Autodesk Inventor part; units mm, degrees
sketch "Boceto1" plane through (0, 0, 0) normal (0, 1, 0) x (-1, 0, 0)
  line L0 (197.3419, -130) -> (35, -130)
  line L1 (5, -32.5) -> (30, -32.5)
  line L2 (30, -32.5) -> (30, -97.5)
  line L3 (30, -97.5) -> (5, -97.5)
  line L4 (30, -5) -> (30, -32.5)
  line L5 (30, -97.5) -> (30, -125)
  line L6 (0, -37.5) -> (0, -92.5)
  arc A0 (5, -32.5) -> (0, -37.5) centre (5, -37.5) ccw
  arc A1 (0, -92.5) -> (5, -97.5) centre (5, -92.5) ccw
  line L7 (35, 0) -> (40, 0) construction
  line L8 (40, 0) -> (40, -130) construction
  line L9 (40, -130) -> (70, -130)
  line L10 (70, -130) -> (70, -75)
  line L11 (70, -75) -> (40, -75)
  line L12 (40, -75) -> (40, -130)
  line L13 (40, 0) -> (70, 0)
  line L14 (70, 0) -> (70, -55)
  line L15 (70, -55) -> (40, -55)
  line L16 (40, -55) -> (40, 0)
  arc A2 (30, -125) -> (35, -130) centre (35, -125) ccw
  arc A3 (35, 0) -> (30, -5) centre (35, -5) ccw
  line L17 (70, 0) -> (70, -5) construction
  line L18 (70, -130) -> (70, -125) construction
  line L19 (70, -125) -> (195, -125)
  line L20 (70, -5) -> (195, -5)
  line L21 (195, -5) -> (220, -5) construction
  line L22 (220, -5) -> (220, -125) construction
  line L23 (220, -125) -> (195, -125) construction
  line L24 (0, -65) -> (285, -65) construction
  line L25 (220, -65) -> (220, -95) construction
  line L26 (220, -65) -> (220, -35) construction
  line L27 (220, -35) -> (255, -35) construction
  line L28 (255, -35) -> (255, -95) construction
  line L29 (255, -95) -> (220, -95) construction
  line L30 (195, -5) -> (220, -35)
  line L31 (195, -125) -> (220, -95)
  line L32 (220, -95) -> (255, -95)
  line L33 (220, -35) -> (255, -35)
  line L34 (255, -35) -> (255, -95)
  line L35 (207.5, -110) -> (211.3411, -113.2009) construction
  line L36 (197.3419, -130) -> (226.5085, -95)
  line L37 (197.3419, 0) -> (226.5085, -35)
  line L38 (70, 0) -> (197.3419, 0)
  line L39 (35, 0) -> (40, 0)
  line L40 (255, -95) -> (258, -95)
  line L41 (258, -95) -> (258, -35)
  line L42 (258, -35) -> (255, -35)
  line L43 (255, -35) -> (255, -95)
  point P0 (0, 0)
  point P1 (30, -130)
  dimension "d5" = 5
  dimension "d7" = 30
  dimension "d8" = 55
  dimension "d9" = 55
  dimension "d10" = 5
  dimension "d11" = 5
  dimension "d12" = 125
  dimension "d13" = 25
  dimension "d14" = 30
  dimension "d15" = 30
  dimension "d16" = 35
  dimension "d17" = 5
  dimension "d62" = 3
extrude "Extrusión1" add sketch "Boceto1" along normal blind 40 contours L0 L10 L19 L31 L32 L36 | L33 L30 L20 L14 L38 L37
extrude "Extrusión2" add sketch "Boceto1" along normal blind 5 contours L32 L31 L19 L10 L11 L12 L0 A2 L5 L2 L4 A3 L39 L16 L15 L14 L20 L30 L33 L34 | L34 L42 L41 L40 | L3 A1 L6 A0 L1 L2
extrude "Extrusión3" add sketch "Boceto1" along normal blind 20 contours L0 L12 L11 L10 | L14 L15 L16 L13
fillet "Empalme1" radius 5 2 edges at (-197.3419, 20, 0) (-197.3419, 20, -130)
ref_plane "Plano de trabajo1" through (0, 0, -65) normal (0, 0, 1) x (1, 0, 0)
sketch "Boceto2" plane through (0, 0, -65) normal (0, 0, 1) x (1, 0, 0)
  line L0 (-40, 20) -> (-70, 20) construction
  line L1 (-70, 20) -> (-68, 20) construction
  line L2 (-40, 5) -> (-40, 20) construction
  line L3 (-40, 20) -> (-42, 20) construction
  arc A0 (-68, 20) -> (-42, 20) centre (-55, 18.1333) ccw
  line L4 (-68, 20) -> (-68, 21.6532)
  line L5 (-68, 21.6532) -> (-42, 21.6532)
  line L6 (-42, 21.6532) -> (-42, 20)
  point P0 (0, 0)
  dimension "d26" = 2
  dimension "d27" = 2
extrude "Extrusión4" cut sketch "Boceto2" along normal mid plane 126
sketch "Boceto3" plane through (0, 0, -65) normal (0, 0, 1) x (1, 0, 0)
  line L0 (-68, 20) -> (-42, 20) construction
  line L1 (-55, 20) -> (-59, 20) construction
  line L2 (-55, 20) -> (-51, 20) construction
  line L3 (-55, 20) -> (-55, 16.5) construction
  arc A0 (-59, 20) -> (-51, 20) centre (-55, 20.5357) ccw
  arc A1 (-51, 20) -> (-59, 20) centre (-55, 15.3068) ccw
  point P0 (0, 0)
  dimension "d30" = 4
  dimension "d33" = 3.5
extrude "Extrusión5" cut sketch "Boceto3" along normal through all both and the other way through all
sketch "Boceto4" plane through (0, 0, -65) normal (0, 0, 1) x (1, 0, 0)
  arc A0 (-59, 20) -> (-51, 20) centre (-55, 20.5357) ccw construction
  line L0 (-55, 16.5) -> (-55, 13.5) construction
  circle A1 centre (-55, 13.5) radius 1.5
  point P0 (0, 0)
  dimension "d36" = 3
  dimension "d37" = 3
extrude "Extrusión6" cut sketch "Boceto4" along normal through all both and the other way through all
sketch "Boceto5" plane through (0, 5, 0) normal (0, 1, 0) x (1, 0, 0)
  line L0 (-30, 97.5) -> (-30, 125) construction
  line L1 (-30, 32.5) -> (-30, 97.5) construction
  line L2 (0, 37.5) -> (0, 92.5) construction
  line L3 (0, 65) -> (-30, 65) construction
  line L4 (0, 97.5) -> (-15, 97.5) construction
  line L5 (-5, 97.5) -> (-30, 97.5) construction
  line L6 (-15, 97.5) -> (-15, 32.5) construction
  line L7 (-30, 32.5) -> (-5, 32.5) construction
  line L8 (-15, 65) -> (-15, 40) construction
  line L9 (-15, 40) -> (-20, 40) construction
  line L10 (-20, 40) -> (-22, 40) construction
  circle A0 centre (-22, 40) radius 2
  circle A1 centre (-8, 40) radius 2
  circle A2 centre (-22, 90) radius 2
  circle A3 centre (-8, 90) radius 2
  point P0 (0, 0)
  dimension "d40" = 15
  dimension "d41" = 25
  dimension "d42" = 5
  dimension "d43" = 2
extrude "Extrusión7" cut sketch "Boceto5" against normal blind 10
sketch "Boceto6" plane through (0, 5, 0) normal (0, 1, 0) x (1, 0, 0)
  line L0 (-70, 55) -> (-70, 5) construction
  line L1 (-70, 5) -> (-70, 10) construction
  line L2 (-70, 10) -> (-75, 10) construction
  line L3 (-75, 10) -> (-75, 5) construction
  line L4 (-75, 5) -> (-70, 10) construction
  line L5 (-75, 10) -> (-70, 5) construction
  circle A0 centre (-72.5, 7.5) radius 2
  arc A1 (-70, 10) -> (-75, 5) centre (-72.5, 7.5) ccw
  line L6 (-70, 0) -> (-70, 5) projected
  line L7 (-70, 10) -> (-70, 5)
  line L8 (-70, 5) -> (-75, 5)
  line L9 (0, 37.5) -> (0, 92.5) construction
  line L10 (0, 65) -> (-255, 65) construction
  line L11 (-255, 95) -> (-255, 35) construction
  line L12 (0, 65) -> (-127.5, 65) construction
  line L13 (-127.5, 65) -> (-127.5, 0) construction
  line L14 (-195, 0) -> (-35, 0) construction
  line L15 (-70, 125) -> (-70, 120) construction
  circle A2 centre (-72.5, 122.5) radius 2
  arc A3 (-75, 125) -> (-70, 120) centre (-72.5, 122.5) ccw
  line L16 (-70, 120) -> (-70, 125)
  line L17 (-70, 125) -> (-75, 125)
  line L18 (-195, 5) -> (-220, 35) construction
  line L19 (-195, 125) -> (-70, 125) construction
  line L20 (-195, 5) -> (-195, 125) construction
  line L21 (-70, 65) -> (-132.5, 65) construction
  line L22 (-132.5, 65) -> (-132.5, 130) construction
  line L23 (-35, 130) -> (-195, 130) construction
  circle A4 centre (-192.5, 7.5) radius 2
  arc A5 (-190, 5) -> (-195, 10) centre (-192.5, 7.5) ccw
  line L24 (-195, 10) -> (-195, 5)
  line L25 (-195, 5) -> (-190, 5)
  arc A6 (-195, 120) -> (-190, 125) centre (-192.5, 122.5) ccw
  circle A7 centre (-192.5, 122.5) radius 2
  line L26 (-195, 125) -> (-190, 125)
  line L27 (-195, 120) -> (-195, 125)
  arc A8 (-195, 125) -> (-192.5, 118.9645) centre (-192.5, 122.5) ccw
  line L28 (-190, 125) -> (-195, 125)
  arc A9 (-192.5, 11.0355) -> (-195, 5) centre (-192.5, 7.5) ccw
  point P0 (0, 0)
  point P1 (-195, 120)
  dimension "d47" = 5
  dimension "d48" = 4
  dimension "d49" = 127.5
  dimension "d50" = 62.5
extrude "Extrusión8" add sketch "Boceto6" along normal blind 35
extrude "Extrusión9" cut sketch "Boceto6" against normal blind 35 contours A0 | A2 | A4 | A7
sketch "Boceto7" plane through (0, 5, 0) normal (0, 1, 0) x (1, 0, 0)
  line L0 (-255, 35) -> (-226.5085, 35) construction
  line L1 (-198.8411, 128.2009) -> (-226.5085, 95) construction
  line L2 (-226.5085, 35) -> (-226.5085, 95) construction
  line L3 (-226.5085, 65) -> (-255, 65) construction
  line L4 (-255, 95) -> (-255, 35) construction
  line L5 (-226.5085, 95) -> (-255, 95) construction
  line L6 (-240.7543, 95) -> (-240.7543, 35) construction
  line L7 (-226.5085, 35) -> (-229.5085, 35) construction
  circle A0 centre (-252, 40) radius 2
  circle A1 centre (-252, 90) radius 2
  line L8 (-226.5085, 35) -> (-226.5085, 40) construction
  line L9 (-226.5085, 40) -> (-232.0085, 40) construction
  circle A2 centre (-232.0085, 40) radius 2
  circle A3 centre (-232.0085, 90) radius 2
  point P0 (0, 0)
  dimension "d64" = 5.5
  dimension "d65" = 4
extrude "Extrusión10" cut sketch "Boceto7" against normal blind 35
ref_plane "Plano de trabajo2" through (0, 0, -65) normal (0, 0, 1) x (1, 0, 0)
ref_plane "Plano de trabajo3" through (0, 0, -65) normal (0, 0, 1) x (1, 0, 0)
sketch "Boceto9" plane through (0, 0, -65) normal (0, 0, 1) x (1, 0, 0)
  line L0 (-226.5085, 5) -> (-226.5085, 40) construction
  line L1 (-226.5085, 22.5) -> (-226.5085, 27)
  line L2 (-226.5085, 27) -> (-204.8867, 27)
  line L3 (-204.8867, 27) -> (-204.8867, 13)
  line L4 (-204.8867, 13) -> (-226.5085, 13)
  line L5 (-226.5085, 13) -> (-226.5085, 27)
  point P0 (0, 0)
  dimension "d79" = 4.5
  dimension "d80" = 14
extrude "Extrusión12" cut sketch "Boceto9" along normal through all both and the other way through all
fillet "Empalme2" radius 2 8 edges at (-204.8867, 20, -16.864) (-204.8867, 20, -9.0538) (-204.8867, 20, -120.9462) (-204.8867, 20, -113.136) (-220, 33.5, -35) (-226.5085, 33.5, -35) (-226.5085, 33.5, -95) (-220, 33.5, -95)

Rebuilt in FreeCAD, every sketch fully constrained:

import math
import FreeCAD as App
import Part
import Sketcher


def edges_at(feature, points):
    """Names of the edges that pass closest to the given points."""
    edges = feature.Shape.Edges
    near = lambda p: min(range(len(edges)), key=lambda i: edges[i].distToShape(Part.Vertex(*p))[0])
    return sorted({f"Edge{near(p) + 1}" for p in points})


def add_polygon(sketch, points):
    """Adds a closed chain of lines whose ends are joined by coincident constraints."""
    first, n = sketch.GeometryCount, len(points)
    for a, b in zip(points, points[1:] + points[:1]):
        sketch.addGeometry(Part.LineSegment(App.Vector(*a, 0), App.Vector(*b, 0)), False)
    for i in range(n):
        sketch.addConstraint(Sketcher.Constraint("Coincident", first + i, 2, first + (i + 1) % n, 1))

doc = App.newDocument("Part")
body = doc.addObject("PartDesign::Body", "Body")
body.AllowCompound = True

# Sketch on XZ plane
sketch1 = doc.addObject("Sketcher::SketchObject", "Sketch")
body.addObject(sketch1)
sketch1.AttachmentSupport = (doc.XZ_Plane, [""])
sketch1.MapMode = "FlatFace"
add_polygon(sketch1, [(-70, -130), (-197, -130), (-227, -95), (-220, -95), (-195, -125), (-70, -125)])  # lines 0-5
add_polygon(sketch1, [(-220, -35), (-227, -35), (-197, 0), (-70, 0), (-70, -5), (-195, -5)])  # lines 6-11
sketch1.addConstraint(Sketcher.Constraint("Horizontal", 0))
sketch1.addConstraint(Sketcher.Constraint("Horizontal", 2))
sketch1.addConstraint(Sketcher.Constraint("Horizontal", 4))
sketch1.addConstraint(Sketcher.Constraint("Vertical", 5))
sketch1.addConstraint(Sketcher.Constraint("Horizontal", 6))
sketch1.addConstraint(Sketcher.Constraint("Horizontal", 8))
sketch1.addConstraint(Sketcher.Constraint("Vertical", 9))
sketch1.addConstraint(Sketcher.Constraint("Horizontal", 10))
sketch1.addConstraint(Sketcher.Constraint("PointOnObject", 7, 2, -1))
sketch1.addConstraint(Sketcher.Constraint("Parallel", 1, 3))
sketch1.addConstraint(Sketcher.Constraint("Parallel", 7, 11))
sketch1.addConstraint(Sketcher.Constraint("Vertical", 1, 2, 6, 2))
sketch1.addConstraint(Sketcher.Constraint("Vertical", 0, 2, 7, 2))
sketch1.addConstraint(Sketcher.Constraint("Vertical", 5, 2, 8, 2))
sketch1.addConstraint(Sketcher.Constraint("Vertical", 3, 2, 10, 2))
sketch1.addConstraint(Sketcher.Constraint("Vertical", 2, 2, 11, 2))
sketch1.addConstraint(Sketcher.Constraint("Equal", 5, 9))
sketch1.addConstraint(Sketcher.Constraint("DistanceX", 4, 1, 4, 2, 125.0))
sketch1.addConstraint(Sketcher.Constraint("DistanceY", 5, 2, 5, 1, 5.0))
sketch1.addConstraint(Sketcher.Constraint("DistanceY", 3, 2, -1, 1, 125.0))
sketch1.addConstraint(Sketcher.Constraint("DistanceY", 6, 2, -1, 1, 35.0))
sketch1.addConstraint(Sketcher.Constraint("DistanceX", 2, 2, 3, 2, 25.0))
sketch1.addConstraint(Sketcher.Constraint("DistanceX", 2, 2, -1, 1, 220.0))
sketch1.addConstraint(Sketcher.Constraint("DistanceX", 0, 2, 0, 1, 127.342))
pad1 = doc.addObject("PartDesign::Pad", "Pad")
body.addObject(pad1)
pad1.Profile = sketch1
pad1.Length = 40
pad1.Reversed = True

# Sketch on XZ plane
sketch2 = doc.addObject("Sketcher::SketchObject", "Sketch001")
body.addObject(sketch2)
sketch2.AttachmentSupport = (doc.XZ_Plane, [""])
sketch2.MapMode = "FlatFace"
sketch2.addGeometry(Part.LineSegment(App.Vector(-220, -95, 0), App.Vector(-258, -95, 0)), False)
sketch2.addGeometry(Part.LineSegment(App.Vector(-258, -95, 0), App.Vector(-258, -35, 0)), False)
sketch2.addGeometry(Part.LineSegment(App.Vector(-258, -35, 0), App.Vector(-220, -35, 0)), False)
sketch2.addGeometry(Part.LineSegment(App.Vector(-220, -35, 0), App.Vector(-195, -5, 0)), False)
sketch2.addGeometry(Part.LineSegment(App.Vector(-195, -5, 0), App.Vector(-70, -5, 0)), False)
sketch2.addGeometry(Part.LineSegment(App.Vector(-70, -5, 0), App.Vector(-70, -55, 0)), False)
sketch2.addGeometry(Part.LineSegment(App.Vector(-70, -55, 0), App.Vector(-40, -55, 0)), False)
sketch2.addGeometry(Part.LineSegment(App.Vector(-40, -55, 0), App.Vector(-40, 0, 0)), False)
sketch2.addGeometry(Part.LineSegment(App.Vector(-40, 0, 0), App.Vector(-35, 0, 0)), False)
sketch2.addGeometry(Part.ArcOfCircle(Part.Circle(App.Vector(-35, -5, 0), App.Vector(0, 0, 1), 5), math.radians(0), math.radians(90)), False)
sketch2.addGeometry(Part.LineSegment(App.Vector(-30, -5, 0), App.Vector(-30, -32, 0)), False)
sketch2.addGeometry(Part.LineSegment(App.Vector(-30, -32, 0), App.Vector(-5, -32, 0)), False)
sketch2.addGeometry(Part.ArcOfCircle(Part.Circle(App.Vector(-5, -38, 0), App.Vector(0, 0, 1), 5), math.radians(0), math.radians(90)), False)
sketch2.addGeometry(Part.LineSegment(App.Vector(0, -38, 0), App.Vector(0, -92, 0)), False)
sketch2.addGeometry(Part.ArcOfCircle(Part.Circle(App.Vector(-5, -92, 0), App.Vector(0, 0, 1), 5), math.radians(-90), math.radians(0)), False)
sketch2.addGeometry(Part.LineSegment(App.Vector(-5, -98, 0), App.Vector(-30, -98, 0)), False)
sketch2.addGeometry(Part.LineSegment(App.Vector(-30, -98, 0), App.Vector(-30, -125, 0)), False)
sketch2.addGeometry(Part.ArcOfCircle(Part.Circle(App.Vector(-35, -125, 0), App.Vector(0, 0, 1), 5), math.radians(-90), math.radians(0)), False)
sketch2.addGeometry(Part.LineSegment(App.Vector(-35, -130, 0), App.Vector(-40, -130, 0)), False)
sketch2.addGeometry(Part.LineSegment(App.Vector(-40, -130, 0), App.Vector(-40, -75, 0)), False)
sketch2.addGeometry(Part.LineSegment(App.Vector(-40, -75, 0), App.Vector(-70, -75, 0)), False)
sketch2.addGeometry(Part.LineSegment(App.Vector(-70, -75, 0), App.Vector(-70, -125, 0)), False)
sketch2.addGeometry(Part.LineSegment(App.Vector(-70, -125, 0), App.Vector(-195, -125, 0)), False)
sketch2.addGeometry(Part.LineSegment(App.Vector(-195, -125, 0), App.Vector(-220, -95, 0)), False)
sketch2.addConstraint(Sketcher.Constraint("Coincident", 0, 2, 1, 1))
sketch2.addConstraint(Sketcher.Constraint("Coincident", 1, 2, 2, 1))
sketch2.addConstraint(Sketcher.Constraint("Coincident", 2, 2, 3, 1))
sketch2.addConstraint(Sketcher.Constraint("Coincident", 3, 2, 4, 1))
sketch2.addConstraint(Sketcher.Constraint("Coincident", 4, 2, 5, 1))
sketch2.addConstraint(Sketcher.Constraint("Coincident", 5, 2, 6, 1))
sketch2.addConstraint(Sketcher.Constraint("Coincident", 6, 2, 7, 1))
sketch2.addConstraint(Sketcher.Constraint("Coincident", 7, 2, 8, 1))
sketch2.addConstraint(Sketcher.Constraint("Tangent", 8, 2, 9, 2))
sketch2.addConstraint(Sketcher.Constraint("Tangent", 9, 1, 10, 1))
sketch2.addConstraint(Sketcher.Constraint("Coincident", 10, 2, 11, 1))
sketch2.addConstraint(Sketcher.Constraint("Tangent", 11, 2, 12, 2))
sketch2.addConstraint(Sketcher.Constraint("Tangent", 12, 1, 13, 1))
sketch2.addConstraint(Sketcher.Constraint("Tangent", 13, 2, 14, 2))
sketch2.addConstraint(Sketcher.Constraint("Tangent", 14, 1, 15, 1))
sketch2.addConstraint(Sketcher.Constraint("Coincident", 15, 2, 16, 1))
sketch2.addConstraint(Sketcher.Constraint("Tangent", 16, 2, 17, 2))
sketch2.addConstraint(Sketcher.Constraint("Tangent", 17, 1, 18, 1))
sketch2.addConstraint(Sketcher.Constraint("Coincident", 18, 2, 19, 1))
sketch2.addConstraint(Sketcher.Constraint("Coincident", 19, 2, 20, 1))
sketch2.addConstraint(Sketcher.Constraint("Coincident", 20, 2, 21, 1))
sketch2.addConstraint(Sketcher.Constraint("Coincident", 21, 2, 22, 1))
sketch2.addConstraint(Sketcher.Constraint("Coincident", 22, 2, 23, 1))
sketch2.addConstraint(Sketcher.Constraint("Coincident", 23, 2, 0, 1))
sketch2.addConstraint(Sketcher.Constraint("Horizontal", 0))
sketch2.addConstraint(Sketcher.Constraint("Vertical", 1))
sketch2.addConstraint(Sketcher.Constraint("Horizontal", 2))
sketch2.addConstraint(Sketcher.Constraint("Horizontal", 4))
sketch2.addConstraint(Sketcher.Constraint("Vertical", 5))
sketch2.addConstraint(Sketcher.Constraint("Horizontal", 6))
sketch2.addConstraint(Sketcher.Constraint("Vertical", 7))
sketch2.addConstraint(Sketcher.Constraint("Horizontal", 8))
sketch2.addConstraint(Sketcher.Constraint("Vertical", 10))
sketch2.addConstraint(Sketcher.Constraint("Horizontal", 11))
sketch2.addConstraint(Sketcher.Constraint("Vertical", 13))
sketch2.addConstraint(Sketcher.Constraint("Horizontal", 15))
sketch2.addConstraint(Sketcher.Constraint("Vertical", 16))
sketch2.addConstraint(Sketcher.Constraint("Horizontal", 18))
sketch2.addConstraint(Sketcher.Constraint("Vertical", 19))
sketch2.addConstraint(Sketcher.Constraint("Horizontal", 20))
sketch2.addConstraint(Sketcher.Constraint("Vertical", 21))
sketch2.addConstraint(Sketcher.Constraint("Horizontal", 22))
sketch2.addConstraint(Sketcher.Constraint("Equal", 9, 12))
sketch2.addConstraint(Sketcher.Constraint("Equal", 12, 14))
sketch2.addConstraint(Sketcher.Constraint("Equal", 14, 17))
sketch2.addConstraint(Sketcher.Constraint("PointOnObject", 7, 2, -1))
sketch2.addConstraint(Sketcher.Constraint("PointOnObject", 12, 1, -2))
sketch2.addConstraint(Sketcher.Constraint("Horizontal", 9, 3, 3, 2))
sketch2.addConstraint(Sketcher.Constraint("Horizontal", 16, 2, 21, 2))
sketch2.addConstraint(Sketcher.Constraint("Vertical", 9, 3, 17, 3))
sketch2.addConstraint(Sketcher.Constraint("Vertical", 7, 2, 18, 2))
sketch2.addConstraint(Sketcher.Constraint("Vertical", 5, 2, 20, 2))
sketch2.addConstraint(Sketcher.Constraint("Vertical", 3, 2, 22, 2))
sketch2.addConstraint(Sketcher.Constraint("Vertical", 2, 2, 23, 2))
sketch2.addConstraint(Sketcher.Constraint("Equal", 7, 13))
sketch2.addConstraint(Sketcher.Constraint("Equal", 10, 16))
sketch2.addConstraint(Sketcher.Constraint("Equal", 13, 19))
sketch2.addConstraint(Sketcher.Constraint("Equal", 3, 23))
sketch2.addConstraint(Sketcher.Constraint("Radius", 9, 5.0))
sketch2.addConstraint(Sketcher.Constraint("DistanceX", 4, 1, 4, 2, 125.0))
sketch2.addConstraint(Sketcher.Constraint("DistanceX", 6, 1, 6, 2, 30.0))
sketch2.addConstraint(Sketcher.Constraint("DistanceX", 8, 1, 8, 2, 5.0))
sketch2.addConstraint(Sketcher.Constraint("DistanceX", 11, 1, 11, 2, 25.0))
sketch2.addConstraint(Sketcher.Constraint("DistanceY", 7, 1, 7, 2, 55.0))
sketch2.addConstraint(Sketcher.Constraint("DistanceY", 17, 3, -1, 1, 125.0))
sketch2.addConstraint(Sketcher.Constraint("DistanceY", 1, 2, -1, 1, 35.0))
sketch2.addConstraint(Sketcher.Constraint("DistanceX", 2, 2, 3, 2, 25.0))
sketch2.addConstraint(Sketcher.Constraint("DistanceX", 0, 2, 0, 1, 38.0))
pad2 = doc.addObject("PartDesign::Pad", "Pad001")
body.addObject(pad2)
pad2.Profile = sketch2
pad2.Length = 5
pad2.Reversed = True

# Sketch on XZ plane
sketch3 = doc.addObject("Sketcher::SketchObject", "Sketch002")
body.addObject(sketch3)
sketch3.AttachmentSupport = (doc.XZ_Plane, [""])
sketch3.MapMode = "FlatFace"
add_polygon(sketch3, [(-40, -130), (-70, -130), (-70, -75), (-40, -75)])  # lines 0-3
add_polygon(sketch3, [(-70, -55), (-70, 0), (-40, 0), (-40, -55)])  # lines 4-7
sketch3.addConstraint(Sketcher.Constraint("Horizontal", 0))
sketch3.addConstraint(Sketcher.Constraint("Vertical", 1))
sketch3.addConstraint(Sketcher.Constraint("Horizontal", 2))
sketch3.addConstraint(Sketcher.Constraint("Vertical", 3))
sketch3.addConstraint(Sketcher.Constraint("Vertical", 4))
sketch3.addConstraint(Sketcher.Constraint("Horizontal", 5))
sketch3.addConstraint(Sketcher.Constraint("Vertical", 6))
sketch3.addConstraint(Sketcher.Constraint("Horizontal", 7))
sketch3.addConstraint(Sketcher.Constraint("PointOnObject", 4, 2, -1))
sketch3.addConstraint(Sketcher.Constraint("Vertical", 1, 2, 4, 2))
sketch3.addConstraint(Sketcher.Constraint("Vertical", 3, 2, 5, 2))
sketch3.addConstraint(Sketcher.Constraint("Equal", 3, 4))
sketch3.addConstraint(Sketcher.Constraint("DistanceX", 0, 2, 0, 1, 30.0))
sketch3.addConstraint(Sketcher.Constraint("DistanceY", 1, 1, 1, 2, 55.0))
sketch3.addConstraint(Sketcher.Constraint("DistanceX", 0, 2, -1, 1, 70.0))
sketch3.addConstraint(Sketcher.Constraint("DistanceY", 0, 2, -1, 1, 130.0))
pad3 = doc.addObject("PartDesign::Pad", "Pad002")
body.addObject(pad3)
pad3.Profile = sketch3
pad3.Length = 20
pad3.Reversed = True
doc.recompute()

fillet = doc.addObject("PartDesign::Fillet", "Fillet")
body.addObject(fillet)
fillet.Base = (pad3, edges_at(pad3, [(-197.342, 20, 0), (-197.342, 20, -130)]))
fillet.Radius = 5

# Sketch on XY plane
sketch4 = doc.addObject("Sketcher::SketchObject", "Sketch003")
body.addObject(sketch4)
sketch4.AttachmentSupport = (doc.XY_Plane, [""])
sketch4.MapMode = "FlatFace"
sketch4.AttachmentOffset = App.Placement(App.Vector(0, 0, -65), App.Rotation())
sketch4.addGeometry(Part.LineSegment(App.Vector(-68, 21.7, 0), App.Vector(-68, 20, 0)), False)
sketch4.addGeometry(Part.ArcOfCircle(Part.Circle(App.Vector(-55, 18.1, 0), App.Vector(0, 0, 1), 13.1), math.radians(172), math.radians(368)), False)
sketch4.addGeometry(Part.LineSegment(App.Vector(-42, 20, 0), App.Vector(-42, 21.7, 0)), False)
sketch4.addGeometry(Part.LineSegment(App.Vector(-42, 21.7, 0), App.Vector(-68, 21.7, 0)), False)
sketch4.addConstraint(Sketcher.Constraint("Coincident", 0, 2, 1, 1))
sketch4.addConstraint(Sketcher.Constraint("Coincident", 1, 2, 2, 1))
sketch4.addConstraint(Sketcher.Constraint("Coincident", 2, 2, 3, 1))
sketch4.addConstraint(Sketcher.Constraint("Coincident", 3, 2, 0, 1))
sketch4.addConstraint(Sketcher.Constraint("Vertical", 0))
sketch4.addConstraint(Sketcher.Constraint("Vertical", 2))
sketch4.addConstraint(Sketcher.Constraint("Horizontal", 3))
sketch4.addConstraint(Sketcher.Constraint("Horizontal", 0, 2, 1, 2))
sketch4.addConstraint(Sketcher.Constraint("DistanceX", 3, 2, 3, 1, 26.0))
sketch4.addConstraint(Sketcher.Constraint("DistanceX", 1, 3, -1, 1, 55.0))
sketch4.addConstraint(Sketcher.Constraint("DistanceY", -1, 1, 0, 2, 20.0))
sketch4.addConstraint(Sketcher.Constraint("Radius", 1, 13.1333))
sketch4.addConstraint(Sketcher.Constraint("DistanceY", 1, 3, 2, 2, 3.52))
pocket1 = doc.addObject("PartDesign::Pocket", "Pocket")
body.addObject(pocket1)
pocket1.Profile = sketch4
pocket1.Length = 126
pocket1.Midplane = True

# Sketch on XY plane
sketch5 = doc.addObject("Sketcher::SketchObject", "Sketch004")
body.addObject(sketch5)
sketch5.AttachmentSupport = (doc.XY_Plane, [""])
sketch5.MapMode = "FlatFace"
sketch5.AttachmentOffset = App.Placement(App.Vector(0, 0, -65), App.Rotation())
sketch5.addGeometry(Part.ArcOfCircle(Part.Circle(App.Vector(-55, 15.3, 0), App.Vector(0, 0, 1), 6.2), math.radians(50), math.radians(130)), False)
sketch5.addGeometry(Part.ArcOfCircle(Part.Circle(App.Vector(-55, 20.5, 0), App.Vector(0, 0, 1), 4), math.radians(-172), math.radians(-8)), False)
sketch5.addConstraint(Sketcher.Constraint("Coincident", 0, 1, 1, 2))
sketch5.addConstraint(Sketcher.Constraint("Coincident", 1, 1, 0, 2))
sketch5.addConstraint(Sketcher.Constraint("Horizontal", 0, 1, 1, 1))
sketch5.addConstraint(Sketcher.Constraint("DistanceX", 1, 3, 0, 1, 4.0))
sketch5.addConstraint(Sketcher.Constraint("DistanceX", 0, 3, -1, 1, 55.0))
sketch5.addConstraint(Sketcher.Constraint("DistanceY", -1, 1, 0, 1, 20.0))
sketch5.addConstraint(Sketcher.Constraint("Radius", 0, 6.1665))
sketch5.addConstraint(Sketcher.Constraint("Radius", 1, 4.0357))
pocket2 = doc.addObject("PartDesign::Pocket", "Pocket001")
body.addObject(pocket2)
pocket2.Profile = sketch5
pocket2.Type = "ThroughAll"
pocket2.Midplane = True

# Sketch on XY plane
sketch6 = doc.addObject("Sketcher::SketchObject", "Sketch005")
body.addObject(sketch6)
sketch6.AttachmentSupport = (doc.XY_Plane, [""])
sketch6.MapMode = "FlatFace"
sketch6.AttachmentOffset = App.Placement(App.Vector(0, 0, -65), App.Rotation())
sketch6.addGeometry(Part.Circle(App.Vector(-55, 13.5, 0), App.Vector(0, 0, 1), 1.5), False)
sketch6.addConstraint(Sketcher.Constraint("Diameter", 0, 3.0))
sketch6.addConstraint(Sketcher.Constraint("DistanceX", 0, 3, -1, 1, 55.0))
sketch6.addConstraint(Sketcher.Constraint("DistanceY", -1, 1, 0, 3, 13.5))
pocket3 = doc.addObject("PartDesign::Pocket", "Pocket002")
body.addObject(pocket3)
pocket3.Profile = sketch6
pocket3.Type = "ThroughAll"
pocket3.Midplane = True

# Sketch on XZ plane
sketch7 = doc.addObject("Sketcher::SketchObject", "Sketch006")
body.addObject(sketch7)
sketch7.AttachmentSupport = (doc.XZ_Plane, [""])
sketch7.MapMode = "FlatFace"
sketch7.AttachmentOffset = App.Placement(App.Vector(0, 0, -5), App.Rotation())
sketch7.addGeometry(Part.Circle(App.Vector(-22, -40, 0), App.Vector(0, 0, 1), 2), False)
sketch7.addGeometry(Part.Circle(App.Vector(-8, -40, 0), App.Vector(0, 0, 1), 2), False)
sketch7.addGeometry(Part.Circle(App.Vector(-22, -90, 0), App.Vector(0, 0, 1), 2), False)
sketch7.addGeometry(Part.Circle(App.Vector(-8, -90, 0), App.Vector(0, 0, 1), 2), False)
sketch7.addConstraint(Sketcher.Constraint("Equal", 0, 1))
sketch7.addConstraint(Sketcher.Constraint("Equal", 1, 2))
sketch7.addConstraint(Sketcher.Constraint("Equal", 2, 3))
sketch7.addConstraint(Sketcher.Constraint("Horizontal", 0, 3, 1, 3))
sketch7.addConstraint(Sketcher.Constraint("Horizontal", 2, 3, 3, 3))
sketch7.addConstraint(Sketcher.Constraint("Vertical", 0, 3, 2, 3))
sketch7.addConstraint(Sketcher.Constraint("Vertical", 1, 3, 3, 3))
sketch7.addConstraint(Sketcher.Constraint("Diameter", 0, 4.0))
sketch7.addConstraint(Sketcher.Constraint("DistanceX", 0, 3, -1, 1, 22.0))
sketch7.addConstraint(Sketcher.Constraint("DistanceY", 0, 3, -1, 1, 40.0))
sketch7.addConstraint(Sketcher.Constraint("DistanceX", 1, 3, -1, 1, 8.0))
sketch7.addConstraint(Sketcher.Constraint("DistanceY", 2, 3, -1, 1, 90.0))
pocket4 = doc.addObject("PartDesign::Pocket", "Pocket003")
body.addObject(pocket4)
pocket4.Profile = sketch7
pocket4.Length = 10
pocket4.Reversed = True

# Sketch on XZ plane
sketch8 = doc.addObject("Sketcher::SketchObject", "Sketch007")
body.addObject(sketch8)
sketch8.AttachmentSupport = (doc.XZ_Plane, [""])
sketch8.MapMode = "FlatFace"
sketch8.AttachmentOffset = App.Placement(App.Vector(0, 0, -5), App.Rotation())
sketch8.addGeometry(Part.LineSegment(App.Vector(-70, -5, 0), App.Vector(-70, -10, 0)), False)
sketch8.addGeometry(Part.ArcOfCircle(Part.Circle(App.Vector(-72.5, -7.5, 0), App.Vector(0, 0, 1), 3.5), math.radians(135), math.radians(315)), False)
sketch8.addGeometry(Part.LineSegment(App.Vector(-75, -5, 0), App.Vector(-70, -5, 0)), False)
sketch8.addGeometry(Part.Circle(App.Vector(-72.5, -7.5, 0), App.Vector(0, 0, 1), 2), False)
sketch8.addGeometry(Part.LineSegment(App.Vector(-70, -125, 0), App.Vector(-75, -125, 0)), False)
sketch8.addGeometry(Part.ArcOfCircle(Part.Circle(App.Vector(-72.5, -122.5, 0), App.Vector(0, 0, 1), 3.5), math.radians(45), math.radians(225)), False)
sketch8.addGeometry(Part.LineSegment(App.Vector(-70, -120, 0), App.Vector(-70, -125, 0)), False)
sketch8.addGeometry(Part.Circle(App.Vector(-72.5, -122.5, 0), App.Vector(0, 0, 1), 2), False)
sketch8.addGeometry(Part.LineSegment(App.Vector(-195, -5, 0), App.Vector(-190, -5, 0)), False)
sketch8.addGeometry(Part.ArcOfCircle(Part.Circle(App.Vector(-192.5, -7.5, 0), App.Vector(0, 0, 1), 3.5), math.radians(-135), math.radians(45)), False)
sketch8.addGeometry(Part.ArcOfCircle(Part.Circle(App.Vector(-192.5, -7.5, 0), App.Vector(0, 0, 1), 3.5), math.radians(135), math.radians(225)), False)
sketch8.addGeometry(Part.Circle(App.Vector(-192.5, -7.5, 0), App.Vector(0, 0, 1), 2), False)
sketch8.addGeometry(Part.LineSegment(App.Vector(-190, -125, 0), App.Vector(-195, -125, 0)), False)
sketch8.addGeometry(Part.ArcOfCircle(Part.Circle(App.Vector(-192.5, -122.5, 0), App.Vector(0, 0, 1), 3.5), math.radians(135), math.radians(225)), False)
sketch8.addGeometry(Part.ArcOfCircle(Part.Circle(App.Vector(-192.5, -122.5, 0), App.Vector(0, 0, 1), 3.5), math.radians(-45), math.radians(135)), False)
sketch8.addGeometry(Part.Circle(App.Vector(-192.5, -122.5, 0), App.Vector(0, 0, 1), 2), False)
sketch8.addConstraint(Sketcher.Constraint("Coincident", 0, 2, 1, 2))
sketch8.addConstraint(Sketcher.Constraint("Coincident", 1, 1, 2, 1))
sketch8.addConstraint(Sketcher.Constraint("Coincident", 2, 2, 0, 1))
sketch8.addConstraint(Sketcher.Constraint("Coincident", 4, 2, 5, 2))
sketch8.addConstraint(Sketcher.Constraint("Coincident", 5, 1, 6, 1))
sketch8.addConstraint(Sketcher.Constraint("Coincident", 6, 2, 4, 1))
sketch8.addConstraint(Sketcher.Constraint("Coincident", 8, 2, 9, 2))
sketch8.addConstraint(Sketcher.Constraint("Tangent", 9, 1, 10, 2))
sketch8.addConstraint(Sketcher.Constraint("Coincident", 10, 1, 8, 1))
sketch8.addConstraint(Sketcher.Constraint("Coincident", 12, 2, 13, 2))
sketch8.addConstraint(Sketcher.Constraint("Tangent", 13, 1, 14, 2))
sketch8.addConstraint(Sketcher.Constraint("Coincident", 14, 1, 12, 1))
sketch8.addConstraint(Sketcher.Constraint("Vertical", 0))
sketch8.addConstraint(Sketcher.Constraint("Horizontal", 2))
sketch8.addConstraint(Sketcher.Constraint("Horizontal", 4))
sketch8.addConstraint(Sketcher.Constraint("Vertical", 6))
sketch8.addConstraint(Sketcher.Constraint("Horizontal", 8))
sketch8.addConstraint(Sketcher.Constraint("Horizontal", 12))
sketch8.addConstraint(Sketcher.Constraint("Coincident", 3, 3, 1, 3))
sketch8.addConstraint(Sketcher.Constraint("Coincident", 7, 3, 5, 3))
sketch8.addConstraint(Sketcher.Constraint("Coincident", 11, 3, 9, 3))
sketch8.addConstraint(Sketcher.Constraint("Coincident", 15, 3, 13, 3))
sketch8.addConstraint(Sketcher.Constraint("Equal", 1, 5))
sketch8.addConstraint(Sketcher.Constraint("Equal", 3, 7))
sketch8.addConstraint(Sketcher.Constraint("Equal", 5, 9))
sketch8.addConstraint(Sketcher.Constraint("Equal", 9, 10))
sketch8.addConstraint(Sketcher.Constraint("Equal", 7, 11))
sketch8.addConstraint(Sketcher.Constraint("Equal", 10, 13))
sketch8.addConstraint(Sketcher.Constraint("Equal", 13, 14))
sketch8.addConstraint(Sketcher.Constraint("Equal", 11, 15))
sketch8.addConstraint(Sketcher.Constraint("Horizontal", 3, 3, 9, 3))
sketch8.addConstraint(Sketcher.Constraint("Horizontal", 7, 3, 13, 3))
sketch8.addConstraint(Sketcher.Constraint("Horizontal", 2, 2, 8, 2))
sketch8.addConstraint(Sketcher.Constraint("Horizontal", 0, 2, 9, 1))
sketch8.addConstraint(Sketcher.Constraint("Horizontal", 6, 2, 12, 2))
sketch8.addConstraint(Sketcher.Constraint("Horizontal", 5, 1, 13, 1))
sketch8.addConstraint(Sketcher.Constraint("Vertical", 3, 3, 5, 3))
sketch8.addConstraint(Sketcher.Constraint("Vertical", 11, 3, 13, 3))
sketch8.addConstraint(Sketcher.Constraint("Vertical", 1, 1, 4, 2))
sketch8.addConstraint(Sketcher.Constraint("Vertical", 2, 2, 5, 1))
sketch8.addConstraint(Sketcher.Constraint("Vertical", 9, 1, 10, 1))
sketch8.addConstraint(Sketcher.Constraint("Equal", 12, 0))
sketch8.addConstraint(Sketcher.Constraint("Diameter", 3, 4.0))
sketch8.addConstraint(Sketcher.Constraint("DistanceX", 2, 1, 2, 2, 5.0))
sketch8.addConstraint(Sketcher.Constraint("DistanceY", 1, 1, -1, 1, 5.0))
sketch8.addConstraint(Sketcher.Constraint("DistanceX", 0, 2, -1, 1, 70.0))
sketch8.addConstraint(Sketcher.Constraint("DistanceY", 4, 2, -1, 1, 125.0))
sketch8.addConstraint(Sketcher.Constraint("DistanceX", 8, 2, -1, 1, 190.0))
pad4 = doc.addObject("PartDesign::Pad", "Pad003")
body.addObject(pad4)
pad4.Profile = sketch8
pad4.Length = 35
pad4.Reversed = True

# Sketch on XZ plane
sketch9 = doc.addObject("Sketcher::SketchObject", "Sketch008")
body.addObject(sketch9)
sketch9.AttachmentSupport = (doc.XZ_Plane, [""])
sketch9.MapMode = "FlatFace"
sketch9.AttachmentOffset = App.Placement(App.Vector(0, 0, -5), App.Rotation())
sketch9.addGeometry(Part.Circle(App.Vector(-72.5, -7.5, 0), App.Vector(0, 0, 1), 2), False)
sketch9.addGeometry(Part.Circle(App.Vector(-72.5, -122.5, 0), App.Vector(0, 0, 1), 2), False)
sketch9.addGeometry(Part.Circle(App.Vector(-192.5, -7.5, 0), App.Vector(0, 0, 1), 2), False)
sketch9.addGeometry(Part.Circle(App.Vector(-192.5, -122.5, 0), App.Vector(0, 0, 1), 2), False)
sketch9.addConstraint(Sketcher.Constraint("Equal", 0, 1))
sketch9.addConstraint(Sketcher.Constraint("Equal", 1, 2))
sketch9.addConstraint(Sketcher.Constraint("Equal", 2, 3))
sketch9.addConstraint(Sketcher.Constraint("Horizontal", 0, 3, 2, 3))
sketch9.addConstraint(Sketcher.Constraint("Horizontal", 1, 3, 3, 3))
sketch9.addConstraint(Sketcher.Constraint("Vertical", 0, 3, 1, 3))
sketch9.addConstraint(Sketcher.Constraint("Vertical", 2, 3, 3, 3))
sketch9.addConstraint(Sketcher.Constraint("Diameter", 0, 4.0))
sketch9.addConstraint(Sketcher.Constraint("DistanceY", 1, 3, 0, 3, 115.0))
sketch9.addConstraint(Sketcher.Constraint("DistanceX", 2, 3, 0, 3, 120.0))
sketch9.addConstraint(Sketcher.Constraint("DistanceX", 0, 3, -1, 1, 72.5))
sketch9.addConstraint(Sketcher.Constraint("DistanceY", 0, 3, -1, 1, 7.5))
pocket5 = doc.addObject("PartDesign::Pocket", "Pocket004")
body.addObject(pocket5)
pocket5.Profile = sketch9
pocket5.Length = 35
pocket5.Reversed = True

# Sketch on XZ plane
sketch10 = doc.addObject("Sketcher::SketchObject", "Sketch009")
body.addObject(sketch10)
sketch10.AttachmentSupport = (doc.XZ_Plane, [""])
sketch10.MapMode = "FlatFace"
sketch10.AttachmentOffset = App.Placement(App.Vector(0, 0, -5), App.Rotation())
sketch10.addGeometry(Part.Circle(App.Vector(-252, -40, 0), App.Vector(0, 0, 1), 2), False)
sketch10.addGeometry(Part.Circle(App.Vector(-252, -90, 0), App.Vector(0, 0, 1), 2), False)
sketch10.addGeometry(Part.Circle(App.Vector(-232, -40, 0), App.Vector(0, 0, 1), 2), False)
sketch10.addGeometry(Part.Circle(App.Vector(-232, -90, 0), App.Vector(0, 0, 1), 2), False)
sketch10.addConstraint(Sketcher.Constraint("Equal", 0, 1))
sketch10.addConstraint(Sketcher.Constraint("Equal", 1, 2))
sketch10.addConstraint(Sketcher.Constraint("Equal", 2, 3))
sketch10.addConstraint(Sketcher.Constraint("Horizontal", 0, 3, 2, 3))
sketch10.addConstraint(Sketcher.Constraint("Horizontal", 1, 3, 3, 3))
sketch10.addConstraint(Sketcher.Constraint("Vertical", 0, 3, 1, 3))
sketch10.addConstraint(Sketcher.Constraint("Vertical", 2, 3, 3, 3))
sketch10.addConstraint(Sketcher.Constraint("Diameter", 0, 4.0))
sketch10.addConstraint(Sketcher.Constraint("DistanceX", 0, 3, -1, 1, 252.0))
sketch10.addConstraint(Sketcher.Constraint("DistanceY", 0, 3, -1, 1, 40.0))
sketch10.addConstraint(Sketcher.Constraint("DistanceY", 1, 3, -1, 1, 90.0))
sketch10.addConstraint(Sketcher.Constraint("DistanceX", 2, 3, -1, 1, 232.0085))
pocket6 = doc.addObject("PartDesign::Pocket", "Pocket005")
body.addObject(pocket6)
pocket6.Profile = sketch10
pocket6.Length = 35
pocket6.Reversed = True

# Sketch on XY plane
sketch11 = doc.addObject("Sketcher::SketchObject", "Sketch010")
body.addObject(sketch11)
sketch11.AttachmentSupport = (doc.XY_Plane, [""])
sketch11.MapMode = "FlatFace"
sketch11.AttachmentOffset = App.Placement(App.Vector(0, 0, -65), App.Rotation())
add_polygon(sketch11, [(-227, 27), (-227, 13), (-205, 13), (-205, 27)])  # lines 0-3
sketch11.addConstraint(Sketcher.Constraint("Vertical", 0))
sketch11.addConstraint(Sketcher.Constraint("Horizontal", 1))
sketch11.addConstraint(Sketcher.Constraint("Vertical", 2))
sketch11.addConstraint(Sketcher.Constraint("Horizontal", 3))
sketch11.addConstraint(Sketcher.Constraint("DistanceY", 0, 2, 0, 1, 14.0))
sketch11.addConstraint(Sketcher.Constraint("DistanceY", -1, 1, 0, 2, 13.0))
sketch11.addConstraint(Sketcher.Constraint("DistanceX", 1, 1, 1, 2, 21.6218))
sketch11.addConstraint(Sketcher.Constraint("DistanceX", 0, 2, -1, 1, 226.5085))
pocket7 = doc.addObject("PartDesign::Pocket", "Pocket006")
body.addObject(pocket7)
pocket7.Profile = sketch11
pocket7.Type = "ThroughAll"
pocket7.Midplane = True
doc.recompute()

fillet2 = doc.addObject("PartDesign::Fillet", "Fillet001")
body.addObject(fillet2)
fillet2.Base = (pocket7, edges_at(pocket7, [
    (-204.887, 20, -16.864),
    (-204.887, 20, -9.054),
    (-204.887, 20, -120.946),
    (-204.887, 20, -113.136),
    (-220, 33.5, -35),
    (-226.508, 33.5, -35),
    (-226.508, 33.5, -95),
    (-220, 33.5, -95),
]))
fillet2.Radius = 2

doc.recompute()
